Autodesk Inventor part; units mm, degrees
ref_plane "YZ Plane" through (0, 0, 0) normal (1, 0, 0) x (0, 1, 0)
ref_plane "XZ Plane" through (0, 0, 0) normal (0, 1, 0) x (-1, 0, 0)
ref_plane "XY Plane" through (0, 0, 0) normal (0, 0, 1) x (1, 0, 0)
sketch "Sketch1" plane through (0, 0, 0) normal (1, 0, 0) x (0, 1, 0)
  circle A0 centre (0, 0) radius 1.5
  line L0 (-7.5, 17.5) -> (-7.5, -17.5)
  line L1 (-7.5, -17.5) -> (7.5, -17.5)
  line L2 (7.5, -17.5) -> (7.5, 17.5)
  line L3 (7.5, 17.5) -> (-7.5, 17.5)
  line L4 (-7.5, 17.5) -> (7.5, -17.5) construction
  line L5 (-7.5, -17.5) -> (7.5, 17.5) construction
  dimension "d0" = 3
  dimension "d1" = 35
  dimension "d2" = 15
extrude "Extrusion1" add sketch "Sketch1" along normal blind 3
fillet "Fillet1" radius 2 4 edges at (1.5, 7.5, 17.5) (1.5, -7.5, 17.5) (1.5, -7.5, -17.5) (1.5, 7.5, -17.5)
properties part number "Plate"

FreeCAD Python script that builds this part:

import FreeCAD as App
import Part
import Sketcher


def edges_at(feature, points):
    """Names of the edges that pass closest to the given points."""
    edges = feature.Shape.Edges
    near = lambda p: min(range(len(edges)), key=lambda i: edges[i].distToShape(Part.Vertex(*p))[0])
    return sorted({f"Edge{near(p) + 1}" for p in points})


def add_polygon(sketch, points):
    """Adds a closed chain of lines whose ends are joined by coincident constraints."""
    first, n = sketch.GeometryCount, len(points)
    for a, b in zip(points, points[1:] + points[:1]):
        sketch.addGeometry(Part.LineSegment(App.Vector(*a, 0), App.Vector(*b, 0)), False)
    for i in range(n):
        sketch.addConstraint(Sketcher.Constraint("Coincident", first + i, 2, first + (i + 1) % n, 1))

doc = App.newDocument("Part")
params = doc.addObject("Spreadsheet::Sheet", "Params")
for row, (alias, value) in enumerate([
    ("sketch1_diameter", "3 mm"),
    ("sketch1_width", "15 mm"),
    ("sketch1_height", "35 mm"),
    ("pad1_length", "3 mm"),
    ("fillet_radius", "2 mm"),
], start=1):
    params.set(f"A{row}", alias)
    params.set(f"B{row}", "=" + value)
    params.setAlias(f"B{row}", alias)

body = doc.addObject("PartDesign::Body", "Body")

# Sketch on YZ plane
sketch1 = doc.addObject("Sketcher::SketchObject", "Sketch")
body.addObject(sketch1)
sketch1.AttachmentSupport = (doc.YZ_Plane, [""])
sketch1.MapMode = "FlatFace"
add_polygon(sketch1, [(7.5, 17.5), (-7.5, 17.5), (-7.5, -17.5), (7.5, -17.5)])  # lines 0-3
sketch1.addGeometry(Part.Circle(App.Vector(0, 0, 0), App.Vector(0, 0, 1), 1.5), False)  # 4
sketch1.addConstraint([
    Sketcher.Constraint("Horizontal", 0),
    Sketcher.Constraint("Vertical", 1),
    Sketcher.Constraint("Horizontal", 2),
    Sketcher.Constraint("Vertical", 3),
    Sketcher.Constraint("Coincident", 4, 3, -1, 1),
    Sketcher.Constraint("Symmetric", 0, 2, 2, 2, -1, 1),
    Sketcher.Constraint("Diameter", 4, 3.0),
    Sketcher.Constraint("DistanceX", 0, 2, 0, 1, 15.0),
    Sketcher.Constraint("DistanceY", 1, 2, 1, 1, 35.0),
])
sketch1.setExpression("Constraints[10]", "Params.sketch1_diameter")
sketch1.setExpression("Constraints[11]", "Params.sketch1_width")
sketch1.setExpression("Constraints[12]", "Params.sketch1_height")
pad1 = doc.addObject("PartDesign::Pad", "Pad")
body.addObject(pad1)
pad1.Profile = sketch1
pad1.setExpression("Length", "Params.pad1_length")
doc.recompute()

fillet = doc.addObject("PartDesign::Fillet", "Fillet")
body.addObject(fillet)
fillet.Base = (pad1, edges_at(pad1, [
    (1.5, 7.5, 17.5),
    (1.5, -7.5, 17.5),
    (1.5, -7.5, -17.5),
    (1.5, 7.5, -17.5),
]))
fillet.setExpression("Radius", "Params.fillet_radius")

doc.recompute()
